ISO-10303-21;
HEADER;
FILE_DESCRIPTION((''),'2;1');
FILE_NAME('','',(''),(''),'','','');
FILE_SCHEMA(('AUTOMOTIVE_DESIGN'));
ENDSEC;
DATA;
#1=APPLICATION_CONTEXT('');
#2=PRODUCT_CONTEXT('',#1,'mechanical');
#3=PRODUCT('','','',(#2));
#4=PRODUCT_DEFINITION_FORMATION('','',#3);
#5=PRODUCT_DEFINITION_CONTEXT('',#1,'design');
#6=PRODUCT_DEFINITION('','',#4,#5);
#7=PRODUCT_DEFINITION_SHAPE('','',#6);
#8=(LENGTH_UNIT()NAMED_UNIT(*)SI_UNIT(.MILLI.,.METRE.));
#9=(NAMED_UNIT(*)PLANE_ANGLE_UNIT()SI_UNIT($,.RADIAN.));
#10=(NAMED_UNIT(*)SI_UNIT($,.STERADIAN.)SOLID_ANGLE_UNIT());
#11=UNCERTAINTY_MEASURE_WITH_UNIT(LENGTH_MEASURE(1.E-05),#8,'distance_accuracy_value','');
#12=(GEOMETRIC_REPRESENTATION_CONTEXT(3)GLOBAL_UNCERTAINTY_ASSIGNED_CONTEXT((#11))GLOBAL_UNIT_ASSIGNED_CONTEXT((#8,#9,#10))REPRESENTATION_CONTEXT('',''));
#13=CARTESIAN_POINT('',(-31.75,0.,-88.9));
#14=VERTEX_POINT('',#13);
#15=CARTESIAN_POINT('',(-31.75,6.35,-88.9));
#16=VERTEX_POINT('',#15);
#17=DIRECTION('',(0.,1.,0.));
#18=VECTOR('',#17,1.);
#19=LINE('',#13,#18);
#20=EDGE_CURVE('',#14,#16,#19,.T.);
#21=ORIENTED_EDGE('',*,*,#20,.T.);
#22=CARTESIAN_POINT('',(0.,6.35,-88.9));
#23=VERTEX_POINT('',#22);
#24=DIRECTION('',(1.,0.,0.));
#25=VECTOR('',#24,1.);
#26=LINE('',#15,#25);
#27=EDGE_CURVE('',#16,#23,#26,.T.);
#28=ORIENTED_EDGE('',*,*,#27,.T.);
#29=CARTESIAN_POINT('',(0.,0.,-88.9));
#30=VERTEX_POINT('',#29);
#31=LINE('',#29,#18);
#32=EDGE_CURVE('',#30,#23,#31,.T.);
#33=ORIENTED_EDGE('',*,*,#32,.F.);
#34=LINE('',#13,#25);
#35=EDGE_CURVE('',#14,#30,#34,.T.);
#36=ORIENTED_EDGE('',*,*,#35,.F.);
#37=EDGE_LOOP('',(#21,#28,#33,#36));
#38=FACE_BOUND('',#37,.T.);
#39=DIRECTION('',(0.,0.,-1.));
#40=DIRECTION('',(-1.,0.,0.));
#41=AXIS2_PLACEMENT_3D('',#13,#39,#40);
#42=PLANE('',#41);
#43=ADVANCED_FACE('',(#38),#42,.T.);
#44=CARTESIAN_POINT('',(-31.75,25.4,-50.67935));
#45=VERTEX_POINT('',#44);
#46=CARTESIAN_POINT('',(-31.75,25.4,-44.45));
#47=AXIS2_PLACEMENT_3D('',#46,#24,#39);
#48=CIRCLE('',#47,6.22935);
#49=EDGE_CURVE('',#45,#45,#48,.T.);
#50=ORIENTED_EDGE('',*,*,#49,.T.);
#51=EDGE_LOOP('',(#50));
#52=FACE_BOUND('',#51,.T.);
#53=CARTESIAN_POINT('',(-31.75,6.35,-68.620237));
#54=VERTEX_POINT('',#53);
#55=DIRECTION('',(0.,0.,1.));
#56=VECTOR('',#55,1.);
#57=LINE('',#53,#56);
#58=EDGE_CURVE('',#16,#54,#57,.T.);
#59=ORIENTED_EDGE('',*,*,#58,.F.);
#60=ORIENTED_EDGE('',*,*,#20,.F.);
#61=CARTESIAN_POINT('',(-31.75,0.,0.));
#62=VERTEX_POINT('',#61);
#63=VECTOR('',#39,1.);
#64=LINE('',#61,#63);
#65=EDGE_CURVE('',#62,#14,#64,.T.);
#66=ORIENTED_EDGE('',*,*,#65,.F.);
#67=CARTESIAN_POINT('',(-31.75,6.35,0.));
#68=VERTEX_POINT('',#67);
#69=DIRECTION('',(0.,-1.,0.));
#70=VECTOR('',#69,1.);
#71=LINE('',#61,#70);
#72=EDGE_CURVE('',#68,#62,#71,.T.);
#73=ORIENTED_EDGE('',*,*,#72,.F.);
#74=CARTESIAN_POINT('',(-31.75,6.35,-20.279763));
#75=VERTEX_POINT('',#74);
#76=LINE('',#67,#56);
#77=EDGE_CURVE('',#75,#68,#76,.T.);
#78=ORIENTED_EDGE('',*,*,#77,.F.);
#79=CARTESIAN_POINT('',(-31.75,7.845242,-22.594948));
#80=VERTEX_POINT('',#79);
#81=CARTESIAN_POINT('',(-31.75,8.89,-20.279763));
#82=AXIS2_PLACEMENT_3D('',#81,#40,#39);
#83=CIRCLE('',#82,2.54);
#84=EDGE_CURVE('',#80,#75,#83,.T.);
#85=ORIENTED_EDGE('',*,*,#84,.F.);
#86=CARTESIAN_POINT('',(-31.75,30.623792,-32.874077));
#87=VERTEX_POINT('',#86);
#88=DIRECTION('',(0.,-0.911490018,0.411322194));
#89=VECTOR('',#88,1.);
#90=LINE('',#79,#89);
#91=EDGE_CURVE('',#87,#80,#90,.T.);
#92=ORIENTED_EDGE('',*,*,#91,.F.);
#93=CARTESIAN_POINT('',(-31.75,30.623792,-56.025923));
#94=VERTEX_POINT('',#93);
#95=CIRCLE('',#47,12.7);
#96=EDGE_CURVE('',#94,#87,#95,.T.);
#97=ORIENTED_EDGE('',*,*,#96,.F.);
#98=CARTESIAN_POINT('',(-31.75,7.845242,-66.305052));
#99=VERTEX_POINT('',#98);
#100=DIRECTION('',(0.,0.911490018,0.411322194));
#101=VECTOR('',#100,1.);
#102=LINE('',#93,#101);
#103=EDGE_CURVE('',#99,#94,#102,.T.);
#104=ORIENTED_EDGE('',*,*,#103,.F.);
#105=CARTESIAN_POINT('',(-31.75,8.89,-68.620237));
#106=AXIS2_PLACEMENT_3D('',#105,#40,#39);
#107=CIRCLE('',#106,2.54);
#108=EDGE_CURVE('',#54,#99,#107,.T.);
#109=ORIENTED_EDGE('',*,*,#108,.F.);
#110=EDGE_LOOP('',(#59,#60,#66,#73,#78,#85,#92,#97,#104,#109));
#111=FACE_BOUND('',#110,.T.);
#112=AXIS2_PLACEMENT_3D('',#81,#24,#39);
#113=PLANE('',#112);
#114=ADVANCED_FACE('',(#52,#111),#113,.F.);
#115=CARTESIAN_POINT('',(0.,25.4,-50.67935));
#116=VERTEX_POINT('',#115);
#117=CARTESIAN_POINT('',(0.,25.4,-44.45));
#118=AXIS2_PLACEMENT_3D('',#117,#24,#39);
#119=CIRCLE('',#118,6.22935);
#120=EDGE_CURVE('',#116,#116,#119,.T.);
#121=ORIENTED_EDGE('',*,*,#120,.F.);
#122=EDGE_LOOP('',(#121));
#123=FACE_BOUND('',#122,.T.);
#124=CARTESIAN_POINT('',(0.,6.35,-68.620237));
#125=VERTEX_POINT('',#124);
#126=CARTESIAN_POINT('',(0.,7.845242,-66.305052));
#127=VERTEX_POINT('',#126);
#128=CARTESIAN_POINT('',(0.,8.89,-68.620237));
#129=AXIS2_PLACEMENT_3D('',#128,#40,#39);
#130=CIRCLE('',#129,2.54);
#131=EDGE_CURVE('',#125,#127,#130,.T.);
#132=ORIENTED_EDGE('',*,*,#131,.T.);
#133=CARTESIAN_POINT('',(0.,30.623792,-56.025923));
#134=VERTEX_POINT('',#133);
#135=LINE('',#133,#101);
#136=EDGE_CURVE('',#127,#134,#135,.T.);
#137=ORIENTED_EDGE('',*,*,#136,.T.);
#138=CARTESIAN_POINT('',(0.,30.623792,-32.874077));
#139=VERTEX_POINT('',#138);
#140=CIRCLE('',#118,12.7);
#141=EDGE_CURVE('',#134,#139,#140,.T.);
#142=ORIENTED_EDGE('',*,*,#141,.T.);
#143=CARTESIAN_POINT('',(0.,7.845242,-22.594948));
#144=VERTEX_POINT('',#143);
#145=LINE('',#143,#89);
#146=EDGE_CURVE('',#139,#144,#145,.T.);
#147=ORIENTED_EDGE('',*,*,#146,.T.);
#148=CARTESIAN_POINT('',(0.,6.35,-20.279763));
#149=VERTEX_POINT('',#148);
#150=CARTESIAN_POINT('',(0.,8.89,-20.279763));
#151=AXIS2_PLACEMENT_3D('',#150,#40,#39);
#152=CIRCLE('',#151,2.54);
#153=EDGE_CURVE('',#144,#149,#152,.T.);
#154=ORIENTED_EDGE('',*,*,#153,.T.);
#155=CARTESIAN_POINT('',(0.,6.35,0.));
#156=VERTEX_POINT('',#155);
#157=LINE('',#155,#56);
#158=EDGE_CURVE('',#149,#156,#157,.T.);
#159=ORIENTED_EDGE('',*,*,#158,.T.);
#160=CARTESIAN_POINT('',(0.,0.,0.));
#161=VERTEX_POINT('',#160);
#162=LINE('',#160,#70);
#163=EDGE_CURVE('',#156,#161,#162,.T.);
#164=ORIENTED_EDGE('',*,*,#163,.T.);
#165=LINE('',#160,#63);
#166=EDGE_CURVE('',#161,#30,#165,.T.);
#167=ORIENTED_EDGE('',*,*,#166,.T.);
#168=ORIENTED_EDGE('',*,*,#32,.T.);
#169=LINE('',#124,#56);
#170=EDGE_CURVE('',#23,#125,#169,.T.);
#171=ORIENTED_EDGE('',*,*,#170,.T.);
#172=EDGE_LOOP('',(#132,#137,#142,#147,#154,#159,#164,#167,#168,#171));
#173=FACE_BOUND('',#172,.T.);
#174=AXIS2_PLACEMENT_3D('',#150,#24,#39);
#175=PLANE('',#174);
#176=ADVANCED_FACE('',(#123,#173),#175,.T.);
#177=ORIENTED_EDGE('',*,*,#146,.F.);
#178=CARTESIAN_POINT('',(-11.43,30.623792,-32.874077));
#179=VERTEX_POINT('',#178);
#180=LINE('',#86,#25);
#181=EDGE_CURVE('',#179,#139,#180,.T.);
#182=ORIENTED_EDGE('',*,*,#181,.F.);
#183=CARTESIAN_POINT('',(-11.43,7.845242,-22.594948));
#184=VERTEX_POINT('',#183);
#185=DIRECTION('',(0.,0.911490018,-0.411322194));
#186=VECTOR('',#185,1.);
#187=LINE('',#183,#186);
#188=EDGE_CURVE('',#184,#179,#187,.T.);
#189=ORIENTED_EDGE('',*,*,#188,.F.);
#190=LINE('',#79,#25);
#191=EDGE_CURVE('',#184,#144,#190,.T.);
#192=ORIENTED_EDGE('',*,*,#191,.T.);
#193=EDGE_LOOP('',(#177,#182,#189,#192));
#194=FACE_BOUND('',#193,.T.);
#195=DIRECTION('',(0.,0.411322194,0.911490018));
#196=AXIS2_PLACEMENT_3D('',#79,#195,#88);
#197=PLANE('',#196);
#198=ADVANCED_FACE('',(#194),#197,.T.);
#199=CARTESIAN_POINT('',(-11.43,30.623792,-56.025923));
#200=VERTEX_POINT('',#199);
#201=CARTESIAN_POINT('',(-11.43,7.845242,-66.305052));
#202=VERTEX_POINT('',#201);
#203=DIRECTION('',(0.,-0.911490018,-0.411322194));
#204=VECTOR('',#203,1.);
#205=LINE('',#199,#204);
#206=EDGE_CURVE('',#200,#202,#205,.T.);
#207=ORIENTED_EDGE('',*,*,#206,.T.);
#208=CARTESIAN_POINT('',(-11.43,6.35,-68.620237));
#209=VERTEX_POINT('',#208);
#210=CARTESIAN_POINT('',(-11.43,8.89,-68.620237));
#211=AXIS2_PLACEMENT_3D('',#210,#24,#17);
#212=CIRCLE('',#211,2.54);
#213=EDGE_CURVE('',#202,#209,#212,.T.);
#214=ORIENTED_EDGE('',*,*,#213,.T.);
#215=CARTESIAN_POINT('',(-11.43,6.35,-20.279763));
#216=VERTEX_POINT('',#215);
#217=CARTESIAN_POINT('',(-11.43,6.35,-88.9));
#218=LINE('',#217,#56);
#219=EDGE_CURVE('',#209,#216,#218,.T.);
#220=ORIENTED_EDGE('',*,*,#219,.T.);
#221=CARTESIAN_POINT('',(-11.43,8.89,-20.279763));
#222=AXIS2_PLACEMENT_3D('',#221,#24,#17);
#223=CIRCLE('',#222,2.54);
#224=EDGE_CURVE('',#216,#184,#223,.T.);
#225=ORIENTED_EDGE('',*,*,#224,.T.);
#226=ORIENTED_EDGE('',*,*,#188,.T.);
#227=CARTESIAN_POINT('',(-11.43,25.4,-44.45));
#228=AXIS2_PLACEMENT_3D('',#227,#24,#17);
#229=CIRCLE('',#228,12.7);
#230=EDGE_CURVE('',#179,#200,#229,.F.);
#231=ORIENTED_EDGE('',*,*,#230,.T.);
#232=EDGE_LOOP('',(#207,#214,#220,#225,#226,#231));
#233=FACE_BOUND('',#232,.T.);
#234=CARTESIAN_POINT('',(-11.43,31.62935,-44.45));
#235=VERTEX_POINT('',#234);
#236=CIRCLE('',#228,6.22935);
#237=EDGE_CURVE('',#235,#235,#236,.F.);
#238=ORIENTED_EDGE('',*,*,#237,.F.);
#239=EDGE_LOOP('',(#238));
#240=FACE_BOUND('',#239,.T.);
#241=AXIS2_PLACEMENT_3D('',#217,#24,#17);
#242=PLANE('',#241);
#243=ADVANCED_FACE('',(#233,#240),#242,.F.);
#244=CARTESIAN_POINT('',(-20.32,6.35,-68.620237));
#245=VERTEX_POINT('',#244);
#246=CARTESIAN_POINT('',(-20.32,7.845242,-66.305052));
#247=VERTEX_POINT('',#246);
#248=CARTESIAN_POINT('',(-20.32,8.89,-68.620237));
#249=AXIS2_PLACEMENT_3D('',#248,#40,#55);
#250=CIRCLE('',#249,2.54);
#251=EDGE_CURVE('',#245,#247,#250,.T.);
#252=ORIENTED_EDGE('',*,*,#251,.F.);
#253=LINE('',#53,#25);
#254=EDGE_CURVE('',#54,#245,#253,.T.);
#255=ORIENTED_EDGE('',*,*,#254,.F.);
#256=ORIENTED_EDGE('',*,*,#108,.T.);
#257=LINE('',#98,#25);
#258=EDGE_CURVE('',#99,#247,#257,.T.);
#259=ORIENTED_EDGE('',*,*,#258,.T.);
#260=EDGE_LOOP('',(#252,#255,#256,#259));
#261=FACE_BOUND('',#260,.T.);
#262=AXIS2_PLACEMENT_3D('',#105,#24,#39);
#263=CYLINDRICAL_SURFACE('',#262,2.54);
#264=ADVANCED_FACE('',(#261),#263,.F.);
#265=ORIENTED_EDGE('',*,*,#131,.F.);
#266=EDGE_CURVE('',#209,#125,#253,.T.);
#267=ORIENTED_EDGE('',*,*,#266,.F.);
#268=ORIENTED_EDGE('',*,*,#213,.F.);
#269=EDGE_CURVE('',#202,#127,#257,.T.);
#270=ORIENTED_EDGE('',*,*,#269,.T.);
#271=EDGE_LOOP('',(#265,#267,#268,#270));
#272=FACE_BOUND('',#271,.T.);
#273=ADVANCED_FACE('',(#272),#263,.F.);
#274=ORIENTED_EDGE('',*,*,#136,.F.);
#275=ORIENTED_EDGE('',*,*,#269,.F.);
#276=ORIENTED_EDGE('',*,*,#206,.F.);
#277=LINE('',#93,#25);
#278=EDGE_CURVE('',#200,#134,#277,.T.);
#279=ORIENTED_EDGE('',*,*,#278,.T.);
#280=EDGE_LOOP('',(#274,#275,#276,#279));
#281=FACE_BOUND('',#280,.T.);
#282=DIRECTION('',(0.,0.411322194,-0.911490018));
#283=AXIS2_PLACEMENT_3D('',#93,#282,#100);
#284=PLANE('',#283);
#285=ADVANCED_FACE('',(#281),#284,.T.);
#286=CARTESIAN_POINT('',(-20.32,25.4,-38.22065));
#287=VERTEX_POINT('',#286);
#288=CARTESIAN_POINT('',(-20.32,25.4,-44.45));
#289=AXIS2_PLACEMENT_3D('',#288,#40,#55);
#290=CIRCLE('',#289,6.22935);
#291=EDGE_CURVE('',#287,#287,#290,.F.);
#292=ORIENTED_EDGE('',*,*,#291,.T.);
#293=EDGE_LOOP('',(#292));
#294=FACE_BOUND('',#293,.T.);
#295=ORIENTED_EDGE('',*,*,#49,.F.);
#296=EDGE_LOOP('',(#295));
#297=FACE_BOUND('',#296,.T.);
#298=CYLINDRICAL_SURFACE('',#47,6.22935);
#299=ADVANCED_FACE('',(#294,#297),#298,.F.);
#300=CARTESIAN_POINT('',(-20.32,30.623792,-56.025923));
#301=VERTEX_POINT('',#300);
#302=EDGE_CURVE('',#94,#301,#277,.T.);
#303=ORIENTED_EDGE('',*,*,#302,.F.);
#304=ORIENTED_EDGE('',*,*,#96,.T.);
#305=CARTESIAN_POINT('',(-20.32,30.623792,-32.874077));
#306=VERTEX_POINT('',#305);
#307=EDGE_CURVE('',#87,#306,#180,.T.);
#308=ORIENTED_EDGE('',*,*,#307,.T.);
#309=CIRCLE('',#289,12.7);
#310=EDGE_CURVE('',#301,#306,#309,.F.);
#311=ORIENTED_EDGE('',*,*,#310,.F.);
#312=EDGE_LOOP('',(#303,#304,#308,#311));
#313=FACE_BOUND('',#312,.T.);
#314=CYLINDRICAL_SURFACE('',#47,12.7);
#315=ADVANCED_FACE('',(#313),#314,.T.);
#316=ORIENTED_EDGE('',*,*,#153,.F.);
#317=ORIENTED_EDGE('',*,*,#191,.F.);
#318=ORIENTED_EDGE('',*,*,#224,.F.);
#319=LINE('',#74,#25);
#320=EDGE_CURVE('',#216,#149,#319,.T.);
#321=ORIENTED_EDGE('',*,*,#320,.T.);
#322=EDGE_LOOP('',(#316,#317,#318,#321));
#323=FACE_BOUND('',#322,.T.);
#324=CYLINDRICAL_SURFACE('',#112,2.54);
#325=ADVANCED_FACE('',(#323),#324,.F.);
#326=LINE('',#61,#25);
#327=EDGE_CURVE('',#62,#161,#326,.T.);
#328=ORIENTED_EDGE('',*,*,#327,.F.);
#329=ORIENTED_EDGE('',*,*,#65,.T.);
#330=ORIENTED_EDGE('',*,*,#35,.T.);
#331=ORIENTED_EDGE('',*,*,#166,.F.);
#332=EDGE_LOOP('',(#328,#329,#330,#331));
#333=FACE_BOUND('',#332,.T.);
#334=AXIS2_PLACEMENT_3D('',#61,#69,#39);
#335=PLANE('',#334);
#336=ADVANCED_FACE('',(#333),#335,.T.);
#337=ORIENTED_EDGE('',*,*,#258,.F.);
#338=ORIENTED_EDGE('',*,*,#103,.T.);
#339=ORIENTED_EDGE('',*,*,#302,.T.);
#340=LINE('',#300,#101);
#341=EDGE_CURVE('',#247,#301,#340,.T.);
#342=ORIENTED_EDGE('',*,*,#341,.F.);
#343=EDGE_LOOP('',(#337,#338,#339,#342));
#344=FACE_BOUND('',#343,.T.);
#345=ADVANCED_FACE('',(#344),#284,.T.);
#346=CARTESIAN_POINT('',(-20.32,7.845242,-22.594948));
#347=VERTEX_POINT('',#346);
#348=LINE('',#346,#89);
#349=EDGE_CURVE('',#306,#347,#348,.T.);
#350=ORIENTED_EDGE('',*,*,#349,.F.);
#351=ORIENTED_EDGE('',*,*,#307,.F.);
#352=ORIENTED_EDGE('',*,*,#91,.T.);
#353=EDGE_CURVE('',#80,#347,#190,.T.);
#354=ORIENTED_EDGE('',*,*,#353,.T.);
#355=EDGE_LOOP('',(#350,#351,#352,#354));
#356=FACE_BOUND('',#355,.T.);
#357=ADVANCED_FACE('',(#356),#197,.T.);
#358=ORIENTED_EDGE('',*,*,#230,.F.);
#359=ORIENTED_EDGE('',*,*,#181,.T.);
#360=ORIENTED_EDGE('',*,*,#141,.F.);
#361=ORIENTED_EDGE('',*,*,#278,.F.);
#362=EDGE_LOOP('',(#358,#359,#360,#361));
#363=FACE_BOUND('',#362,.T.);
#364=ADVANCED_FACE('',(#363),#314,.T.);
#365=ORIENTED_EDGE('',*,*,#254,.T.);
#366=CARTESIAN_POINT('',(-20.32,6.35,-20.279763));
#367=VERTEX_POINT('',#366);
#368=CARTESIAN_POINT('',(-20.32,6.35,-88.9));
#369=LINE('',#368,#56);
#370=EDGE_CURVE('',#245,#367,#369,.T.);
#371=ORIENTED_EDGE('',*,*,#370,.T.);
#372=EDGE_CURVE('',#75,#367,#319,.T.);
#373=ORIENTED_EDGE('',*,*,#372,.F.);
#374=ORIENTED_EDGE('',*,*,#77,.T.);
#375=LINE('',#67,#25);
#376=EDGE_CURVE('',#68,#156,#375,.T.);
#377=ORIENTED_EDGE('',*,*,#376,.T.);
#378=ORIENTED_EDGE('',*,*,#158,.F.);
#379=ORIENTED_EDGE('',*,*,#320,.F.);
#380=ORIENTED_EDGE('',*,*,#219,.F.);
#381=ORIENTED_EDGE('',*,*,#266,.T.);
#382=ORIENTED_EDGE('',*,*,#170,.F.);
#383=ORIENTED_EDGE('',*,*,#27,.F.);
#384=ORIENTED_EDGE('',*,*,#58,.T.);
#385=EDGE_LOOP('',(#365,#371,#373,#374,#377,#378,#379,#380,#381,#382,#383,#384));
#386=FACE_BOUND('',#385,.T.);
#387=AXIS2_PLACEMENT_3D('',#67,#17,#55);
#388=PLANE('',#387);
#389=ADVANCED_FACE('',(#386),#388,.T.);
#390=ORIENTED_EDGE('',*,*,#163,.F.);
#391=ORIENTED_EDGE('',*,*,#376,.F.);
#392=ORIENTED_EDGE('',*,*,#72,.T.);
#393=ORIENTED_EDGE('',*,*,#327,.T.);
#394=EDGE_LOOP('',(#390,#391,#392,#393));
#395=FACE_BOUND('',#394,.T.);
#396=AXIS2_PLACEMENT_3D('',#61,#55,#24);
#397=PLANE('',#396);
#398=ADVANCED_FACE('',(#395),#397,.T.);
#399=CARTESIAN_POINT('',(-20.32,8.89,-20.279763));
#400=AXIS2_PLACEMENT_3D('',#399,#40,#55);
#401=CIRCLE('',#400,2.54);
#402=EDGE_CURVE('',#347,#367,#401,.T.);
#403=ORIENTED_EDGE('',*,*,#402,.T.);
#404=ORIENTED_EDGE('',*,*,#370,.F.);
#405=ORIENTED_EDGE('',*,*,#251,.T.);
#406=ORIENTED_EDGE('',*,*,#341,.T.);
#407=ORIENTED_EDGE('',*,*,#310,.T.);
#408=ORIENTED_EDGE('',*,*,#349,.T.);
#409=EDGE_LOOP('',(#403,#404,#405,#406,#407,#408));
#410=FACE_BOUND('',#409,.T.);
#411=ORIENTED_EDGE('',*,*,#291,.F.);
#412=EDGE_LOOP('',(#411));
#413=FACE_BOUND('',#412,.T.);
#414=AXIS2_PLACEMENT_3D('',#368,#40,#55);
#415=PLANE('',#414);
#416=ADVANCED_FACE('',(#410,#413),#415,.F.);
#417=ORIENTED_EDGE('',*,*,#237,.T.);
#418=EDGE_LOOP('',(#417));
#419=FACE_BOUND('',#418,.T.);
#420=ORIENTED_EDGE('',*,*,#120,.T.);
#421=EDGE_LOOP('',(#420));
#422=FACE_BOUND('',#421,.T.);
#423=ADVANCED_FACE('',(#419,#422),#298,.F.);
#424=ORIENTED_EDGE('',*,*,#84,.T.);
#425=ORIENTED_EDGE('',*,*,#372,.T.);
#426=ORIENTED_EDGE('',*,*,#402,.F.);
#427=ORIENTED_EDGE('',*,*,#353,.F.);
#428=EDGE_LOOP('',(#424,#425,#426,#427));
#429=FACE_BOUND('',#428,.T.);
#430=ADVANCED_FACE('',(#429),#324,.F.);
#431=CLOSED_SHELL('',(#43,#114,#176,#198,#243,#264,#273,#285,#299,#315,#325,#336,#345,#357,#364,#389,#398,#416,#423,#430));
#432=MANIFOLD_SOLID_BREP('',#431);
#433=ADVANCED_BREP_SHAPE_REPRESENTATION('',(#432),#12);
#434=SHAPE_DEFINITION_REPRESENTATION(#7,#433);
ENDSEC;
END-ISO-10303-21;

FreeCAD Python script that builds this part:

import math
import FreeCAD as App
import Part
import Sketcher
Q = App.Units.Quantity


def add_polygon(sketch, points):
    """Adds a closed chain of lines whose ends are joined by coincident constraints."""
    first, n = sketch.GeometryCount, len(points)
    for a, b in zip(points, points[1:] + points[:1]):
        sketch.addGeometry(Part.LineSegment(App.Vector(*a, 0), App.Vector(*b, 0)), False)
    for i in range(n):
        sketch.addConstraint(Sketcher.Constraint("Coincident", first + i, 2, first + (i + 1) % n, 1))

doc = App.newDocument("Part")
body = doc.addObject("PartDesign::Body", "Body")

# Sketch on YZ plane
sketch1 = body.newObject("Sketcher::SketchObject", "Sketch")
sketch1.AttachmentSupport = (doc.getObject("YZ_Plane"), [""])
sketch1.MapMode = "FlatFace"
sketch1.addGeometry(Part.LineSegment(App.Vector(30.623792, -32.874077, 0), App.Vector(7.845242, -22.594948, 0)), False)
sketch1.addGeometry(Part.ArcOfCircle(Part.Circle(App.Vector(8.89, -20.279763, 0), App.Vector(0, 0, 1), 2.54), math.radians(180), math.radians(245.71208)), False)
sketch1.addGeometry(Part.LineSegment(App.Vector(6.35, -20.279763, 0), App.Vector(6.35, 0, 0)), False)
sketch1.addGeometry(Part.LineSegment(App.Vector(6.35, 0, 0), App.Vector(0, 0, 0)), False)
sketch1.addGeometry(Part.LineSegment(App.Vector(0, 0, 0), App.Vector(0, -88.9, 0)), False)
sketch1.addGeometry(Part.LineSegment(App.Vector(0, -88.9, 0), App.Vector(6.35, -88.9, 0)), False)
sketch1.addGeometry(Part.LineSegment(App.Vector(6.35, -88.9, 0), App.Vector(6.35, -68.620237, 0)), False)
sketch1.addGeometry(Part.ArcOfCircle(Part.Circle(App.Vector(8.89, -68.620237, 0), App.Vector(0, 0, 1), 2.54), math.radians(114.28792), math.radians(180)), False)
sketch1.addGeometry(Part.LineSegment(App.Vector(7.845242, -66.305052, 0), App.Vector(30.623792, -56.025923, 0)), False)
sketch1.addGeometry(Part.ArcOfCircle(Part.Circle(App.Vector(25.4, -44.45, 0), App.Vector(0, 0, 1), 12.7), math.radians(-65.71208), math.radians(65.71208)), False)
sketch1.addGeometry(Part.Circle(App.Vector(25.4, -44.45, 0), App.Vector(0, 0, 1), 6.22935), False)
sketch1.addConstraint(Sketcher.Constraint("Tangent", 0, 2, 1, 2))
sketch1.addConstraint(Sketcher.Constraint("Tangent", 1, 1, 2, 1))
sketch1.addConstraint(Sketcher.Constraint("Coincident", 2, 2, 3, 1))
sketch1.addConstraint(Sketcher.Constraint("Coincident", 3, 2, 4, 1))
sketch1.addConstraint(Sketcher.Constraint("Coincident", 4, 2, 5, 1))
sketch1.addConstraint(Sketcher.Constraint("Coincident", 5, 2, 6, 1))
sketch1.addConstraint(Sketcher.Constraint("Tangent", 6, 2, 7, 2))
sketch1.addConstraint(Sketcher.Constraint("Tangent", 7, 1, 8, 1))
sketch1.addConstraint(Sketcher.Constraint("Tangent", 8, 2, 9, 1))
sketch1.addConstraint(Sketcher.Constraint("Tangent", 9, 2, 0, 1))
sketch1.addConstraint(Sketcher.Constraint("Vertical", 2))
sketch1.addConstraint(Sketcher.Constraint("Horizontal", 3))
sketch1.addConstraint(Sketcher.Constraint("Vertical", 4))
sketch1.addConstraint(Sketcher.Constraint("Horizontal", 5))
sketch1.addConstraint(Sketcher.Constraint("Vertical", 6))
sketch1.addConstraint(Sketcher.Constraint("Coincident", 3, 2, -1, 1))
sketch1.addConstraint(Sketcher.Constraint("Coincident", 10, 3, 9, 3))
sketch1.addConstraint(Sketcher.Constraint("Equal", 1, 7))
sketch1.addConstraint(Sketcher.Constraint("Vertical", 1, 3, 7, 3))
sketch1.addConstraint(Sketcher.Constraint("Vertical", 0, 2, 7, 1))
sketch1.addConstraint(Sketcher.Constraint("Equal", 2, 6))
sketch1.addConstraint(Sketcher.Constraint("Radius", 1, Q("0.1 in")))
sketch1.addConstraint(Sketcher.Constraint("Radius", 9, Q("0.5 in")))
sketch1.addConstraint(Sketcher.Constraint("DistanceY", 4, 2, 4, 1, Q("3.5 in")))
sketch1.addConstraint(Sketcher.Constraint("DistanceX", -1, 1, 9, 3, Q("1 in")))
sketch1.addConstraint(Sketcher.Constraint("Diameter", 10, Q("0.4905 in")))
sketch1.addConstraint(Sketcher.Constraint("DistanceX", 3, 2, 3, 1, Q("0.25 in")))
sketch1.addConstraint(Sketcher.Constraint("DistanceY", 2, 1, 2, 2, Q("20.279763 mm")))
pad1 = body.newObject("PartDesign::Pad", "Pad")
pad1.Profile = sketch1
pad1.Length = Q("1.25 in")
pad1.Reversed = True

# Sketch on XY plane
sketch2 = body.newObject("Sketcher::SketchObject", "Sketch001")
sketch2.AttachmentSupport = (doc.getObject("XY_Plane"), [""])
sketch2.MapMode = "FlatFace"
add_polygon(sketch2, [(-20.32, 38.1), (-20.32, 6.35), (-11.43, 6.35), (-11.43, 38.1)])  # lines 0-3
sketch2.addConstraint(Sketcher.Constraint("Vertical", 0))
sketch2.addConstraint(Sketcher.Constraint("Horizontal", 1))
sketch2.addConstraint(Sketcher.Constraint("Vertical", 2))
sketch2.addConstraint(Sketcher.Constraint("Horizontal", 3))
sketch2.addConstraint(Sketcher.Constraint("DistanceX", 1, 1, 1, 2, Q("0.35 in")))
sketch2.addConstraint(Sketcher.Constraint("DistanceY", 0, 2, 0, 1, Q("1.25 in")))
sketch2.addConstraint(Sketcher.Constraint("DistanceX", 0, 2, -1, 1, Q("0.8 in")))
sketch2.addConstraint(Sketcher.Constraint("DistanceY", -1, 1, 2, 2, Q("1.5 in")))
pocket1 = body.newObject("PartDesign::Pocket", "Pocket")
pocket1.Profile = sketch2
pocket1.Type = "ThroughAll"

doc.recompute()
